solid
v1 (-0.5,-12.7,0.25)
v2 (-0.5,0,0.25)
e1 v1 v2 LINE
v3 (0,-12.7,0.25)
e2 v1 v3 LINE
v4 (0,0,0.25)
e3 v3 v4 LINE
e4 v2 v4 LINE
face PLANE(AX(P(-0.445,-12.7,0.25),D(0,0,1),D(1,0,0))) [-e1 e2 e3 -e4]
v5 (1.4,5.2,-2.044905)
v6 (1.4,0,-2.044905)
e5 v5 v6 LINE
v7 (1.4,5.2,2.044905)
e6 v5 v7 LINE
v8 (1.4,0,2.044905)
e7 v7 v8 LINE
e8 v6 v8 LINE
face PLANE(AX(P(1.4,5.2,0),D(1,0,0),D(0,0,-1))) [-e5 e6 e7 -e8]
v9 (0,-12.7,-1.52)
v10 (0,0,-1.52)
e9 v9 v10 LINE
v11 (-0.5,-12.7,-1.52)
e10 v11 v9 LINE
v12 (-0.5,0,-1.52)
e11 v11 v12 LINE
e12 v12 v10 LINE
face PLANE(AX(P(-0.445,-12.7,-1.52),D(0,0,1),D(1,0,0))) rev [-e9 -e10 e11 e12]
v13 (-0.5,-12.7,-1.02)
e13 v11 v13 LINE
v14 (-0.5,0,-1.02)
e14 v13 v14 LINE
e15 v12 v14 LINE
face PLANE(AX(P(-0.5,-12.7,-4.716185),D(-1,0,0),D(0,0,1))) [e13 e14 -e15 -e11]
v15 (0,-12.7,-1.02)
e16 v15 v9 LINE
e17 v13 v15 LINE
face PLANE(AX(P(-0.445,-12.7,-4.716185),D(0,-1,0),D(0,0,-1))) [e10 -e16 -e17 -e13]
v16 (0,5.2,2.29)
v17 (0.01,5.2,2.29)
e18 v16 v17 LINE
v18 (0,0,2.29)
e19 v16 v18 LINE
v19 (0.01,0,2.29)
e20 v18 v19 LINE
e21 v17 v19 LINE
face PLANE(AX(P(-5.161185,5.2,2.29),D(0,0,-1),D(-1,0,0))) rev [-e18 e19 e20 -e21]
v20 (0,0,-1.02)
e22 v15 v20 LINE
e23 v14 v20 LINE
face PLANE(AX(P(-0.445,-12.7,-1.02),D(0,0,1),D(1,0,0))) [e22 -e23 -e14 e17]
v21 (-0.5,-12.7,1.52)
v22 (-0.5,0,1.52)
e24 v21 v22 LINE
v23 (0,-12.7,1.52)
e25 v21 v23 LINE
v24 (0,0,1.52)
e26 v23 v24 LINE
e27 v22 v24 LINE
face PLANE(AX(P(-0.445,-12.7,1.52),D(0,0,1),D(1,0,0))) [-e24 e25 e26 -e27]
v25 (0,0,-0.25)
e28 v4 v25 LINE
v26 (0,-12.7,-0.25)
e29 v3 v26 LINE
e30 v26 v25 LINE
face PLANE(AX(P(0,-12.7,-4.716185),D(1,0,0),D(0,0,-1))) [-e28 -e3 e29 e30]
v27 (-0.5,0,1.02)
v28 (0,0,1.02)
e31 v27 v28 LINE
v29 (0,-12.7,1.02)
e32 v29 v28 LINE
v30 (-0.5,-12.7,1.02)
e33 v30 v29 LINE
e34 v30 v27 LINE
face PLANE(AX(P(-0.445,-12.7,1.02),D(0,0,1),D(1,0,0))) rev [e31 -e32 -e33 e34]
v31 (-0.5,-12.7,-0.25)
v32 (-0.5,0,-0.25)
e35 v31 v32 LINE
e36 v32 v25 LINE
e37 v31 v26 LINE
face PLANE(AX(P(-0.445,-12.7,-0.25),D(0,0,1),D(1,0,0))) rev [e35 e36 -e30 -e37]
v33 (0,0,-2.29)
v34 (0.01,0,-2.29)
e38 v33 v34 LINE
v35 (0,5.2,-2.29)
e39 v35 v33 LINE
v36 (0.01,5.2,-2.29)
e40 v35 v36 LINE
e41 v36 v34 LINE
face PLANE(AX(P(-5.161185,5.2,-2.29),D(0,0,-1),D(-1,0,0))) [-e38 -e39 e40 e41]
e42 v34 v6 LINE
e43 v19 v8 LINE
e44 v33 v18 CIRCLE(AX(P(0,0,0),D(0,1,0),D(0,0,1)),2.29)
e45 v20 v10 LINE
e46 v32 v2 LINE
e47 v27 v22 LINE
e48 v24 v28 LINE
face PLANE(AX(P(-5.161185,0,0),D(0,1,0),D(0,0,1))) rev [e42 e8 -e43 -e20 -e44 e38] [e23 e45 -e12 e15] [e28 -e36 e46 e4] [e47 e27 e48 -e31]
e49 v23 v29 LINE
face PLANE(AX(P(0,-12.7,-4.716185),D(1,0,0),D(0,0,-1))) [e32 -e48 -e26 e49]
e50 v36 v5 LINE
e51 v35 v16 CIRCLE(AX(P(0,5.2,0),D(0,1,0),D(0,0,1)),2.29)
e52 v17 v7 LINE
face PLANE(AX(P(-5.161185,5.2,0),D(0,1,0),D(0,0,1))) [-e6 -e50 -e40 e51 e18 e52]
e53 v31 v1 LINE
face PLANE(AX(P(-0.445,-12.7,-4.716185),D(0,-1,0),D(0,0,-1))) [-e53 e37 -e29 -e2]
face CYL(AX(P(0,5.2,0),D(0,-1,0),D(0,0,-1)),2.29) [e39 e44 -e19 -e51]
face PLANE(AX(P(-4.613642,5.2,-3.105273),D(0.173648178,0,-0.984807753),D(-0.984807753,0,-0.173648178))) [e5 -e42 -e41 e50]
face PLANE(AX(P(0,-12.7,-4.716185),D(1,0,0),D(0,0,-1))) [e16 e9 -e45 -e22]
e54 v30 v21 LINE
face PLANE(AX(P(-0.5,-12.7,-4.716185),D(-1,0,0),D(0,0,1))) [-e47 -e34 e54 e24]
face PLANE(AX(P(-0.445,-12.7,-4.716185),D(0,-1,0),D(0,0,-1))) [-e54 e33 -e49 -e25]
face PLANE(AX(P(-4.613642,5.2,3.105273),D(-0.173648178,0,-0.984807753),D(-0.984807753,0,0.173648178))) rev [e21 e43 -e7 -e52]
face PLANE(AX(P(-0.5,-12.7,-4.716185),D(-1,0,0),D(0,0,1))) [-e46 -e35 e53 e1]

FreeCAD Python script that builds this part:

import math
import FreeCAD as App
import Part
import Sketcher
from FreeCAD import Vector
Q = App.Units.Quantity


def add_polygon(sketch, points):
    """Adds a closed chain of lines whose ends are joined by coincident constraints."""
    first, n = sketch.GeometryCount, len(points)
    for a, b in zip(points, points[1:] + points[:1]):
        sketch.addGeometry(Part.LineSegment(App.Vector(*a, 0), App.Vector(*b, 0)), False)
    for i in range(n):
        sketch.addConstraint(Sketcher.Constraint("Coincident", first + i, 2, first + (i + 1) % n, 1))

doc = App.newDocument("Part")
body = doc.addObject("PartDesign::Body", "Body")

sketch1 = doc.addObject("Sketcher::SketchObject", "Sketch")
body.addObject(sketch1)
sketch1.AttachmentSupport = (doc.XZ_Plane, [""])
sketch1.MapMode = "FlatFace"
sketch1.addGeometry(Part.LineSegment(Vector(0, 2.3, 0), Vector(0, -2.3, 0)), False)
sketch1.addGeometry(Part.ArcOfCircle(Part.Circle(Vector(0, 0, 0), Vector(0, 0, 1), 2.3), math.radians(90), math.radians(270)), False)
sketch1.addConstraint(Sketcher.Constraint("Coincident", 0, 1, 1, 1))
sketch1.addConstraint(Sketcher.Constraint("Coincident", 1, 2, 0, 2))
sketch1.addConstraint(Sketcher.Constraint("Vertical", 0))
sketch1.addConstraint(Sketcher.Constraint("Coincident", 1, 3, -1, 1))
sketch1.addConstraint(Sketcher.Constraint("PointOnObject", 0, 1, -2))
sketch1.addConstraint(Sketcher.Constraint("Radius", 1, 2.29))
pad1 = doc.addObject("PartDesign::Pad", "Pad")
body.addObject(pad1)
pad1.Profile = sketch1
pad1.Length = 5.2
pad1.Reversed = True

sketch2 = doc.addObject("Sketcher::SketchObject", "Sketch001")
body.addObject(sketch2)
sketch2.AttachmentSupport = (doc.XZ_Plane, [""])
sketch2.MapMode = "FlatFace"
add_polygon(sketch2, [(1.4, 2.045), (1.4, -2.045), (0.01, -2.29), (0, -2.29), (0, 2.29), (0.01, 2.29)])
sketch2.addConstraint(Sketcher.Constraint("Vertical", 0))
sketch2.addConstraint(Sketcher.Constraint("Horizontal", 2))
sketch2.addConstraint(Sketcher.Constraint("Vertical", 3))
sketch2.addConstraint(Sketcher.Constraint("Horizontal", 4))
sketch2.addConstraint(Sketcher.Constraint("Symmetric", 2, 2, 3, 2, -1, 1))
sketch2.addConstraint(Sketcher.Constraint("Vertical", 1, 2, 4, 2))
sketch2.addConstraint(Sketcher.Constraint("Equal", 1, 5))
sketch2.addConstraint(Sketcher.Constraint("Angle", 1, Q("-170 deg")))
sketch2.addConstraint(Sketcher.Constraint("DistanceX", 2, 2, 2, 1, 0.01))
sketch2.addConstraint(Sketcher.Constraint("DistanceY", 3, 1, 3, 2, 4.58))
sketch2.addConstraint(Sketcher.Constraint("DistanceX", -1, 1, 0, 2, 1.4))
pad2 = doc.addObject("PartDesign::Pad", "Pad001")
body.addObject(pad2)
pad2.Profile = sketch2
pad2.Length = 5.2
pad2.Reversed = True

sketch3 = doc.addObject("Sketcher::SketchObject", "Sketch002")
body.addObject(sketch3)
sketch3.AttachmentSupport = (doc.XZ_Plane, [""])
sketch3.MapMode = "FlatFace"
add_polygon(sketch3, [(0, -1.5), (0, -1), (-0.5, -1), (-0.5, -1.5)])
add_polygon(sketch3, [(0, -0.2), (0, 0.2), (-0.5, 0.2), (-0.5, -0.2)])
add_polygon(sketch3, [(0, 1), (0, 1.5), (-0.5, 1.5), (-0.5, 1)])
sketch3.addConstraint(Sketcher.Constraint("Vertical", 0))
sketch3.addConstraint(Sketcher.Constraint("Horizontal", 1))
sketch3.addConstraint(Sketcher.Constraint("Vertical", 2))
sketch3.addConstraint(Sketcher.Constraint("Horizontal", 3))
sketch3.addConstraint(Sketcher.Constraint("Vertical", 4))
sketch3.addConstraint(Sketcher.Constraint("Horizontal", 5))
sketch3.addConstraint(Sketcher.Constraint("Vertical", 6))
sketch3.addConstraint(Sketcher.Constraint("Horizontal", 7))
sketch3.addConstraint(Sketcher.Constraint("Vertical", 8))
sketch3.addConstraint(Sketcher.Constraint("Horizontal", 9))
sketch3.addConstraint(Sketcher.Constraint("Vertical", 10))
sketch3.addConstraint(Sketcher.Constraint("Horizontal", 11))
sketch3.addConstraint(Sketcher.Constraint("Symmetric", 4, 2, 7, 2, -1, 1))
sketch3.addConstraint(Sketcher.Constraint("Symmetric", 3, 2, 8, 2, -1, 1))
sketch3.addConstraint(Sketcher.Constraint("Symmetric", 1, 2, 10, 2, -1))
sketch3.addConstraint(Sketcher.Constraint("PointOnObject", 0, 2, -2))
sketch3.addConstraint(Sketcher.Constraint("Vertical", 2, 2, 5, 2))
sketch3.addConstraint(Sketcher.Constraint("Equal", 11, 0))
sketch3.addConstraint(Sketcher.Constraint("Equal", 2, 4))
sketch3.addConstraint(Sketcher.Constraint("DistanceX", 1, 2, 1, 1, 0.5))
sketch3.addConstraint(Sketcher.Constraint("DistanceY", 0, 2, -1, 1, 1.02))
pad3 = doc.addObject("PartDesign::Pad", "Pad002")
body.addObject(pad3)
pad3.Profile = sketch3
pad3.Length = 12.7

doc.recompute()
